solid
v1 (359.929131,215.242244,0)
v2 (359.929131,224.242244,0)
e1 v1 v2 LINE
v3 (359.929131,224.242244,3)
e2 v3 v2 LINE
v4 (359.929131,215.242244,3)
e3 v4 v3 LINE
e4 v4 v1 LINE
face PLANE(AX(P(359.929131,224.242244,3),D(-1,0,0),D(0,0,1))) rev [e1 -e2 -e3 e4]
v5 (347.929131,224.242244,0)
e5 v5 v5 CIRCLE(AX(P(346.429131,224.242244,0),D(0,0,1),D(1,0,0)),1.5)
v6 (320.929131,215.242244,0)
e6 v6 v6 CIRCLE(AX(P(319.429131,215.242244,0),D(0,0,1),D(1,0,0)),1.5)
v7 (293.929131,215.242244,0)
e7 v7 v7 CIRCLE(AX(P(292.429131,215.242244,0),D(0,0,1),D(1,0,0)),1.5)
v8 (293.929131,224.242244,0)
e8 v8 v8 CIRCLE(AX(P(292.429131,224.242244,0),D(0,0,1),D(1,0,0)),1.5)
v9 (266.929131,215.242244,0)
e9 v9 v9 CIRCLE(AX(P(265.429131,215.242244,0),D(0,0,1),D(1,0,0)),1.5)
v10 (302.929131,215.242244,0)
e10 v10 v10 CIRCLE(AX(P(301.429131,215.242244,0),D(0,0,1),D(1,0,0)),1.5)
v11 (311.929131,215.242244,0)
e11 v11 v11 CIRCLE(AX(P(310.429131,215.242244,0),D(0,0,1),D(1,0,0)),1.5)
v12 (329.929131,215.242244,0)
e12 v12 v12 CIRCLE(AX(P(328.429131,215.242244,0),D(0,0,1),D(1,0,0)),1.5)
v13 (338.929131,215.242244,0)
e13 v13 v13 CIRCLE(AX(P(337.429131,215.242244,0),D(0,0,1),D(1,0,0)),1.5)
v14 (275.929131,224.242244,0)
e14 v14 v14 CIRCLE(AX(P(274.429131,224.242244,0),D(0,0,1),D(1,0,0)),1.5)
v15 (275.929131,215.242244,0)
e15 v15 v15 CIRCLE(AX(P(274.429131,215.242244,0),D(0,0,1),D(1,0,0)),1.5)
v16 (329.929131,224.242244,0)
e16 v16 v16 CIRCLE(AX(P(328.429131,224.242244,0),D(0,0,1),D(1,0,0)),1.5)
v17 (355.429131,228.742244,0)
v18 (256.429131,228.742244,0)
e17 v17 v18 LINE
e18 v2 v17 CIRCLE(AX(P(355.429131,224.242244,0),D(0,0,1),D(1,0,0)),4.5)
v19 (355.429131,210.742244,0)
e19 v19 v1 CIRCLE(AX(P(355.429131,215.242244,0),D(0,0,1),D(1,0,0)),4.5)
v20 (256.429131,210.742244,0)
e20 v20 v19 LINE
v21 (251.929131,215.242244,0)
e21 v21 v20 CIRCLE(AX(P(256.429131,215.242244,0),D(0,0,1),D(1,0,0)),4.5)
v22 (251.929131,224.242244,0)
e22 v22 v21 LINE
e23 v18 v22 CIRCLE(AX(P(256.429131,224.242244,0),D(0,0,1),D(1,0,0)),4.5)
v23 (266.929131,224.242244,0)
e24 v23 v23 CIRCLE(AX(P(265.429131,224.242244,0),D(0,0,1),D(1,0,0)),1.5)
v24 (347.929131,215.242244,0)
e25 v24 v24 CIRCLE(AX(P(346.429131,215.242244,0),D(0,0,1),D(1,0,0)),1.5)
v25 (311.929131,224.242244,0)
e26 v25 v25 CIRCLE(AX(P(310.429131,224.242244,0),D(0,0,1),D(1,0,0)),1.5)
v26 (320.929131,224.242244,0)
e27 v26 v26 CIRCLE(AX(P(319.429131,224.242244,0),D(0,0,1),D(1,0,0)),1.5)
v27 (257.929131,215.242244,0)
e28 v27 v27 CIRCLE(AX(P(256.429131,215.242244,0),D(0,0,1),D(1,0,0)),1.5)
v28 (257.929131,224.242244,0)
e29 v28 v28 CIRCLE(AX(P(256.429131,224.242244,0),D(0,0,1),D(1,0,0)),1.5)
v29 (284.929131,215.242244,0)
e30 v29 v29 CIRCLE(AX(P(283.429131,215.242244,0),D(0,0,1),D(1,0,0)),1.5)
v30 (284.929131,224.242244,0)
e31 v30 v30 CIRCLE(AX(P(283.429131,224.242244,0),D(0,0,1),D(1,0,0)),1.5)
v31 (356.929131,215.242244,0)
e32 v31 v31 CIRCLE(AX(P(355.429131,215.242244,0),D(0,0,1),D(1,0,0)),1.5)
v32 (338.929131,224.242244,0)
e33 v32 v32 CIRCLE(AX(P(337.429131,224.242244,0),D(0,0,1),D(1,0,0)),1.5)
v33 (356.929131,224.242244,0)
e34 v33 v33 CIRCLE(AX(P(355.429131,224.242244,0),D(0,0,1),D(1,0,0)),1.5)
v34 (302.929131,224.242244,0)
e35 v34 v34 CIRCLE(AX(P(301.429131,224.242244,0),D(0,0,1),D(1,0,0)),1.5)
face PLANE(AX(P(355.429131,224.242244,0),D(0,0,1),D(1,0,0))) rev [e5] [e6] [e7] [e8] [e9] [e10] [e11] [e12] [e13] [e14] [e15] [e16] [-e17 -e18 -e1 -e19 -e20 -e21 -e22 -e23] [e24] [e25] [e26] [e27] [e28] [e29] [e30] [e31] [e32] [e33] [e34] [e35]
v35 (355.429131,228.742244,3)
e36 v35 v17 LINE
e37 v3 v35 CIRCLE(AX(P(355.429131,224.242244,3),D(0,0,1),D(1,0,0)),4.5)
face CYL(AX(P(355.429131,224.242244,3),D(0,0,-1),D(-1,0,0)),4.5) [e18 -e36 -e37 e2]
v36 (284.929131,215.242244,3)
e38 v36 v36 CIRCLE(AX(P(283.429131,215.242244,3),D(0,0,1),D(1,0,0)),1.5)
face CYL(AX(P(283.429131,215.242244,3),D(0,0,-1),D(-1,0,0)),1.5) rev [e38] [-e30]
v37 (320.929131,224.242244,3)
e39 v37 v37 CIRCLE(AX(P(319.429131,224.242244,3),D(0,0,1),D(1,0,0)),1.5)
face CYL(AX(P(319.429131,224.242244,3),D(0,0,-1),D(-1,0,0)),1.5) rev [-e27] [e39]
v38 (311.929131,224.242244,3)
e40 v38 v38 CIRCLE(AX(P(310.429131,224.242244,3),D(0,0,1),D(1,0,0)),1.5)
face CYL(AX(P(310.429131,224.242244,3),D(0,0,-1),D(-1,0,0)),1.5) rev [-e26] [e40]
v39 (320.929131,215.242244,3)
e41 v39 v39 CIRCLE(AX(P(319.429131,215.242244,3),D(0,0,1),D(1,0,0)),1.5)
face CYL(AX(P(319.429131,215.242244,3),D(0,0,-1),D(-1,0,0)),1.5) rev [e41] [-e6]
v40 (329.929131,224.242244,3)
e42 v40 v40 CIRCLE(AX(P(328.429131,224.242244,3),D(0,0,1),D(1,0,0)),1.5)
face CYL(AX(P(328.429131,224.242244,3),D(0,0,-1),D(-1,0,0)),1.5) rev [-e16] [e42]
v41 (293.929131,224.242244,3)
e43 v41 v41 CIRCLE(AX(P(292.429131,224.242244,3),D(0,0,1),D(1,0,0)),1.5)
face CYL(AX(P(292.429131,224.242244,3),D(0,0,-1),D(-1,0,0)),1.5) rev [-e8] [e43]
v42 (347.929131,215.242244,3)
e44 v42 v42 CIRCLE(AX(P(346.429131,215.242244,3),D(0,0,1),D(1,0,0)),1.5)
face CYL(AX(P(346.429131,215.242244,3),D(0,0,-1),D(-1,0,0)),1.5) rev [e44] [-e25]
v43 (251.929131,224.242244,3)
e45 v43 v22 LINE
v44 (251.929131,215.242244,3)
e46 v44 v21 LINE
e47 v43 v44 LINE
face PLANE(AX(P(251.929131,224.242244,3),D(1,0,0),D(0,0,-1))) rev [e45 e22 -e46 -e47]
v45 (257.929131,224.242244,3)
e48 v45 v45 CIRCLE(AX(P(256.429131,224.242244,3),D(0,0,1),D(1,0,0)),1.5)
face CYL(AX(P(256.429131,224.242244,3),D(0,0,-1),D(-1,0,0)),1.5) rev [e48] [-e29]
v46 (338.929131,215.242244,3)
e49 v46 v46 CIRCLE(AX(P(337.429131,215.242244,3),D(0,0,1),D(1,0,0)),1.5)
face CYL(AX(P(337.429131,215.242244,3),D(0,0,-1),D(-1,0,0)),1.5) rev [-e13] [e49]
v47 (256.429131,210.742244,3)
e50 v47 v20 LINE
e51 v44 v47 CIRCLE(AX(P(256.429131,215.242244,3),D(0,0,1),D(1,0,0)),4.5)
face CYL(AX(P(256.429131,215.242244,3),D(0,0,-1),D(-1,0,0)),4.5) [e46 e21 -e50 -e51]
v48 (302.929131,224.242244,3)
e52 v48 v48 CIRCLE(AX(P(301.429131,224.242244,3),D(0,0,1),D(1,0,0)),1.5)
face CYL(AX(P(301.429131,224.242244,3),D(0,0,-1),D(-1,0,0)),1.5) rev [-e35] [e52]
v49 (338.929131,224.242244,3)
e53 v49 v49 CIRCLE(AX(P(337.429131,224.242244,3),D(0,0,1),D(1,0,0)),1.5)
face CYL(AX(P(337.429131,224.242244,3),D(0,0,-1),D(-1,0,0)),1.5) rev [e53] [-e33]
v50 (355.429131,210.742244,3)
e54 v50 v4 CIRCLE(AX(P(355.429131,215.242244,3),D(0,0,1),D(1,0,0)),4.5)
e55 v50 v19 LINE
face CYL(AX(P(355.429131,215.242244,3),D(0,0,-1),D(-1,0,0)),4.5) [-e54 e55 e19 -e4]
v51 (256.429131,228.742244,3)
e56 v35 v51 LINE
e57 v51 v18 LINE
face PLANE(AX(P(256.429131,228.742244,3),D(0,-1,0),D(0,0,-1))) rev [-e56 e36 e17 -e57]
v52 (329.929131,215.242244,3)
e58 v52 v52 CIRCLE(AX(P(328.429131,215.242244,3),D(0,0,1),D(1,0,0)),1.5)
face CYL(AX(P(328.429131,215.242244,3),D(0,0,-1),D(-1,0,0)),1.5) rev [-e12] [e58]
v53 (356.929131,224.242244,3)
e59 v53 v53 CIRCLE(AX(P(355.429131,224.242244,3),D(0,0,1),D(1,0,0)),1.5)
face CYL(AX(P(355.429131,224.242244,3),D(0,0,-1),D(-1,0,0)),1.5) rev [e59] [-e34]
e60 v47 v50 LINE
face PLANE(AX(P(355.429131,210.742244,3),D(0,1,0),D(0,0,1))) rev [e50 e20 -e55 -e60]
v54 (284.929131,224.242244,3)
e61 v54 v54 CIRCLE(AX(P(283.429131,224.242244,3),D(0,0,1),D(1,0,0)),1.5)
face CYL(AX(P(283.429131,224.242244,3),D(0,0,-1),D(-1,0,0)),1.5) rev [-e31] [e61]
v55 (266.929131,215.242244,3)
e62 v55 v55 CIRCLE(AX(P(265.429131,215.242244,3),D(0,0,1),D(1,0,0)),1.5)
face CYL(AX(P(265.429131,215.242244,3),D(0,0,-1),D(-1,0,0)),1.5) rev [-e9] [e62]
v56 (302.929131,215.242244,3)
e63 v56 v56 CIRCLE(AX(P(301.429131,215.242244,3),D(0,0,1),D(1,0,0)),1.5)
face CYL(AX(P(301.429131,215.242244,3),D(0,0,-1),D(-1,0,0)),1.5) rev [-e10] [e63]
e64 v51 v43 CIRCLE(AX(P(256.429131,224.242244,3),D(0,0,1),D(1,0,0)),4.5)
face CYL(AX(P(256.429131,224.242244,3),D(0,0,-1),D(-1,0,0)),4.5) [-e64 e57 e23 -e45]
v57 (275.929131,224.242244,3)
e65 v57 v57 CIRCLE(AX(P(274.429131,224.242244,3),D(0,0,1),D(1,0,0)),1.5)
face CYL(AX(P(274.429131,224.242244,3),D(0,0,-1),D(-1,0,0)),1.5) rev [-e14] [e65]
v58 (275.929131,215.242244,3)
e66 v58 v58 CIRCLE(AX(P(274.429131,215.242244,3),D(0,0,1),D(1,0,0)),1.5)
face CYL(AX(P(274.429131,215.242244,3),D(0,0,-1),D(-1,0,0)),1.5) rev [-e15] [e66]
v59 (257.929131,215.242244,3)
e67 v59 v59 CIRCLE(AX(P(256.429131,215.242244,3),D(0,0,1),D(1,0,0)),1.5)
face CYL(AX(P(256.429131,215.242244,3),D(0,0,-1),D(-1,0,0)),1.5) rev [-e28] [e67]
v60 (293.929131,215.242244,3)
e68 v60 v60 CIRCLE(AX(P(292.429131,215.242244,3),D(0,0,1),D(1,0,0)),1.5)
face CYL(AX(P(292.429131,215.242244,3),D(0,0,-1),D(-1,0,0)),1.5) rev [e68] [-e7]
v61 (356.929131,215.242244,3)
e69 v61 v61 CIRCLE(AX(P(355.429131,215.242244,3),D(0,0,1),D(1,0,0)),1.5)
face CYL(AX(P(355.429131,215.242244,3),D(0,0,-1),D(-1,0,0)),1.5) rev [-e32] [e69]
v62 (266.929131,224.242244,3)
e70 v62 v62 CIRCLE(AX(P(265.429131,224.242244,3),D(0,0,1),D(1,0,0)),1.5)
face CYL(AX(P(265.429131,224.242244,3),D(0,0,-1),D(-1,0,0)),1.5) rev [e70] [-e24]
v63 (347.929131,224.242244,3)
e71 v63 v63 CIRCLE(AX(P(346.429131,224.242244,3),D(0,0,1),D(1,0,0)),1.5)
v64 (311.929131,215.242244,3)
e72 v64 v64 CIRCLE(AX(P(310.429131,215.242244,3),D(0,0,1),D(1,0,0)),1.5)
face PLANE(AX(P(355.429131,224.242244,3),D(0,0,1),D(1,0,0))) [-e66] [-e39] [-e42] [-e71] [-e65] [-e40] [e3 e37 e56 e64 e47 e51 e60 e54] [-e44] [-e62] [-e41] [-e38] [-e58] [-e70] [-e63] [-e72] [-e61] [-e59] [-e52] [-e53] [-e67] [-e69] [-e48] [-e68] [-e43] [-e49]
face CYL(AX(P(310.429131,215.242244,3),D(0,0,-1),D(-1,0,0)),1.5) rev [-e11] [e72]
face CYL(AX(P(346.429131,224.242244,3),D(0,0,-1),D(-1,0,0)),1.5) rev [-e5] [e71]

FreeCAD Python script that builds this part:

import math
import FreeCAD as App
import Part
import Sketcher
Q = App.Units.Quantity

doc = App.newDocument("Part")
body = doc.addObject("PartDesign::Body", "Body")

sketch1 = body.newObject("Sketcher::SketchObject", "Sketch")
sketch1.AttachmentSupport = (doc.getObject("XY_Plane"), [""])
sketch1.MapMode = "FlatFace"
sketch1.addGeometry([
    Part.LineSegment(App.Vector(355.4, 228.7, 0), App.Vector(256.4, 228.7, 0)),
    Part.ArcOfCircle(Part.Circle(App.Vector(256.4, 224.2, 0), App.Vector(0, 0, 1), 4.5), math.radians(90), math.radians(180)),
    Part.LineSegment(App.Vector(251.9, 224.2, 0), App.Vector(251.9, 215.2, 0)),
    Part.ArcOfCircle(Part.Circle(App.Vector(256.4, 215.2, 0), App.Vector(0, 0, 1), 4.5), math.radians(180), math.radians(270)),
    Part.LineSegment(App.Vector(256.4, 210.7, 0), App.Vector(355.4, 210.7, 0)),
    Part.ArcOfCircle(Part.Circle(App.Vector(355.4, 215.2, 0), App.Vector(0, 0, 1), 4.5), math.radians(-90), math.radians(0)),
    Part.LineSegment(App.Vector(359.9, 215.2, 0), App.Vector(359.9, 224.2, 0)),
    Part.ArcOfCircle(Part.Circle(App.Vector(355.4, 224.2, 0), App.Vector(0, 0, 1), 4.5), math.radians(0), math.radians(90)),
    Part.Circle(App.Vector(355.4, 215.2, 0), App.Vector(0, 0, 1), 1.5),
    Part.Circle(App.Vector(346.4, 215.2, 0), App.Vector(0, 0, 1), 1.5),
    Part.Circle(App.Vector(337.4, 215.2, 0), App.Vector(0, 0, 1), 1.5),
    Part.Circle(App.Vector(328.4, 215.2, 0), App.Vector(0, 0, 1), 1.5),
    Part.Circle(App.Vector(319.4, 215.2, 0), App.Vector(0, 0, 1), 1.5),
    Part.Circle(App.Vector(310.4, 215.2, 0), App.Vector(0, 0, 1), 1.5),
    Part.Circle(App.Vector(301.4, 215.2, 0), App.Vector(0, 0, 1), 1.5),
    Part.Circle(App.Vector(292.4, 215.2, 0), App.Vector(0, 0, 1), 1.5),
    Part.Circle(App.Vector(283.4, 215.2, 0), App.Vector(0, 0, 1), 1.5),
    Part.Circle(App.Vector(274.4, 215.2, 0), App.Vector(0, 0, 1), 1.5),
    Part.Circle(App.Vector(265.4, 215.2, 0), App.Vector(0, 0, 1), 1.5),
    Part.Circle(App.Vector(256.4, 215.2, 0), App.Vector(0, 0, 1), 1.5),
    Part.Circle(App.Vector(355.4, 224.2, 0), App.Vector(0, 0, 1), 1.5),
    Part.Circle(App.Vector(346.4, 224.2, 0), App.Vector(0, 0, 1), 1.5),
    Part.Circle(App.Vector(337.4, 224.2, 0), App.Vector(0, 0, 1), 1.5),
    Part.Circle(App.Vector(328.4, 224.2, 0), App.Vector(0, 0, 1), 1.5),
    Part.Circle(App.Vector(319.4, 224.2, 0), App.Vector(0, 0, 1), 1.5),
    Part.Circle(App.Vector(310.4, 224.2, 0), App.Vector(0, 0, 1), 1.5),
    Part.Circle(App.Vector(301.4, 224.2, 0), App.Vector(0, 0, 1), 1.5),
    Part.Circle(App.Vector(292.4, 224.2, 0), App.Vector(0, 0, 1), 1.5),
    Part.Circle(App.Vector(283.4, 224.2, 0), App.Vector(0, 0, 1), 1.5),
    Part.Circle(App.Vector(274.4, 224.2, 0), App.Vector(0, 0, 1), 1.5),
    Part.Circle(App.Vector(265.4, 224.2, 0), App.Vector(0, 0, 1), 1.5),
    Part.Circle(App.Vector(256.4, 224.2, 0), App.Vector(0, 0, 1), 1.5),
], False)
sketch1.addConstraint([
    Sketcher.Constraint("Tangent", 0, 2, 1, 1),
    Sketcher.Constraint("Tangent", 1, 2, 2, 1),
    Sketcher.Constraint("Tangent", 2, 2, 3, 1),
    Sketcher.Constraint("Tangent", 3, 2, 4, 1),
    Sketcher.Constraint("Tangent", 4, 2, 5, 1),
    Sketcher.Constraint("Tangent", 5, 2, 6, 1),
    Sketcher.Constraint("Tangent", 6, 2, 7, 1),
    Sketcher.Constraint("Tangent", 7, 2, 0, 1),
    Sketcher.Constraint("Horizontal", 0),
    Sketcher.Constraint("Vertical", 2),
    Sketcher.Constraint("Horizontal", 4),
    Sketcher.Constraint("Vertical", 6),
    Sketcher.Constraint("Coincident", 8, 3, 5, 3),
    Sketcher.Constraint("Coincident", 19, 3, 3, 3),
    Sketcher.Constraint("Coincident", 20, 3, 7, 3),
    Sketcher.Constraint("Coincident", 31, 3, 1, 3),
    Sketcher.Constraint("Equal", 1, 3),
    Sketcher.Constraint("Equal", 3, 5),
    Sketcher.Constraint("Equal", 5, 7),
    Sketcher.Constraint("Equal", 8, 9),
    Sketcher.Constraint("Equal", 9, 10),
    Sketcher.Constraint("Equal", 10, 11),
    Sketcher.Constraint("Equal", 11, 12),
    Sketcher.Constraint("Equal", 12, 13),
    Sketcher.Constraint("Equal", 13, 14),
    Sketcher.Constraint("Equal", 14, 15),
    Sketcher.Constraint("Equal", 15, 16),
    Sketcher.Constraint("Equal", 16, 17),
    Sketcher.Constraint("Equal", 17, 18),
    Sketcher.Constraint("Equal", 18, 19),
    Sketcher.Constraint("Equal", 19, 20),
    Sketcher.Constraint("Equal", 20, 21),
    Sketcher.Constraint("Equal", 21, 22),
    Sketcher.Constraint("Equal", 22, 23),
    Sketcher.Constraint("Equal", 23, 24),
    Sketcher.Constraint("Equal", 24, 25),
    Sketcher.Constraint("Equal", 25, 26),
    Sketcher.Constraint("Equal", 26, 27),
    Sketcher.Constraint("Equal", 27, 28),
    Sketcher.Constraint("Equal", 28, 29),
    Sketcher.Constraint("Equal", 29, 30),
    Sketcher.Constraint("Equal", 30, 31),
    Sketcher.Constraint("Horizontal", 8, 3, 9, 3),
    Sketcher.Constraint("Horizontal", 9, 3, 10, 3),
    Sketcher.Constraint("Horizontal", 10, 3, 11, 3),
    Sketcher.Constraint("Horizontal", 11, 3, 12, 3),
    Sketcher.Constraint("Horizontal", 12, 3, 13, 3),
    Sketcher.Constraint("Horizontal", 13, 3, 14, 3),
    Sketcher.Constraint("Horizontal", 14, 3, 15, 3),
    Sketcher.Constraint("Horizontal", 15, 3, 16, 3),
    Sketcher.Constraint("Horizontal", 16, 3, 17, 3),
    Sketcher.Constraint("Horizontal", 17, 3, 18, 3),
    Sketcher.Constraint("Horizontal", 20, 3, 21, 3),
    Sketcher.Constraint("Horizontal", 21, 3, 22, 3),
    Sketcher.Constraint("Horizontal", 22, 3, 23, 3),
    Sketcher.Constraint("Horizontal", 23, 3, 24, 3),
    Sketcher.Constraint("Horizontal", 24, 3, 25, 3),
    Sketcher.Constraint("Horizontal", 25, 3, 26, 3),
    Sketcher.Constraint("Horizontal", 26, 3, 27, 3),
    Sketcher.Constraint("Horizontal", 27, 3, 28, 3),
    Sketcher.Constraint("Horizontal", 28, 3, 29, 3),
    Sketcher.Constraint("Horizontal", 29, 3, 30, 3),
    Sketcher.Constraint("Vertical", 9, 3, 21, 3),
    Sketcher.Constraint("Vertical", 10, 3, 22, 3),
    Sketcher.Constraint("Vertical", 11, 3, 23, 3),
    Sketcher.Constraint("Vertical", 12, 3, 24, 3),
    Sketcher.Constraint("Vertical", 13, 3, 25, 3),
    Sketcher.Constraint("Vertical", 14, 3, 26, 3),
    Sketcher.Constraint("Vertical", 15, 3, 27, 3),
    Sketcher.Constraint("Vertical", 16, 3, 28, 3),
    Sketcher.Constraint("Vertical", 17, 3, 29, 3),
    Sketcher.Constraint("Vertical", 18, 3, 30, 3),
    Sketcher.Constraint("Diameter", 8, Q("3 mm")),
    Sketcher.Constraint("Radius", 1, Q("4.5 mm")),
    Sketcher.Constraint("DistanceX", 0, 2, 0, 1, Q("99 mm")),
    Sketcher.Constraint("DistanceY", 2, 2, 2, 1, Q("9 mm")),
    Sketcher.Constraint("DistanceX", 9, 3, 5, 3, Q("9 mm")),
    Sketcher.Constraint("DistanceX", 10, 3, 9, 3, Q("9 mm")),
    Sketcher.Constraint("DistanceX", 11, 3, 10, 3, Q("9 mm")),
    Sketcher.Constraint("DistanceX", 12, 3, 11, 3, Q("9 mm")),
    Sketcher.Constraint("DistanceX", 13, 3, 12, 3, Q("9 mm")),
    Sketcher.Constraint("DistanceX", 14, 3, 13, 3, Q("9 mm")),
    Sketcher.Constraint("DistanceX", 15, 3, 14, 3, Q("9 mm")),
    Sketcher.Constraint("DistanceX", 16, 3, 15, 3, Q("9 mm")),
    Sketcher.Constraint("DistanceX", 17, 3, 16, 3, Q("9 mm")),
    Sketcher.Constraint("DistanceX", 18, 3, 17, 3, Q("9 mm")),
    Sketcher.Constraint("DistanceX", -1, 1, 1, 3, Q("256.429131 mm")),
    Sketcher.Constraint("DistanceY", -1, 1, 1, 3, Q("224.242244 mm")),
])
pad1 = body.newObject("PartDesign::Pad", "Pad")
pad1.Profile = sketch1
pad1.Length = 3

doc.recompute()
